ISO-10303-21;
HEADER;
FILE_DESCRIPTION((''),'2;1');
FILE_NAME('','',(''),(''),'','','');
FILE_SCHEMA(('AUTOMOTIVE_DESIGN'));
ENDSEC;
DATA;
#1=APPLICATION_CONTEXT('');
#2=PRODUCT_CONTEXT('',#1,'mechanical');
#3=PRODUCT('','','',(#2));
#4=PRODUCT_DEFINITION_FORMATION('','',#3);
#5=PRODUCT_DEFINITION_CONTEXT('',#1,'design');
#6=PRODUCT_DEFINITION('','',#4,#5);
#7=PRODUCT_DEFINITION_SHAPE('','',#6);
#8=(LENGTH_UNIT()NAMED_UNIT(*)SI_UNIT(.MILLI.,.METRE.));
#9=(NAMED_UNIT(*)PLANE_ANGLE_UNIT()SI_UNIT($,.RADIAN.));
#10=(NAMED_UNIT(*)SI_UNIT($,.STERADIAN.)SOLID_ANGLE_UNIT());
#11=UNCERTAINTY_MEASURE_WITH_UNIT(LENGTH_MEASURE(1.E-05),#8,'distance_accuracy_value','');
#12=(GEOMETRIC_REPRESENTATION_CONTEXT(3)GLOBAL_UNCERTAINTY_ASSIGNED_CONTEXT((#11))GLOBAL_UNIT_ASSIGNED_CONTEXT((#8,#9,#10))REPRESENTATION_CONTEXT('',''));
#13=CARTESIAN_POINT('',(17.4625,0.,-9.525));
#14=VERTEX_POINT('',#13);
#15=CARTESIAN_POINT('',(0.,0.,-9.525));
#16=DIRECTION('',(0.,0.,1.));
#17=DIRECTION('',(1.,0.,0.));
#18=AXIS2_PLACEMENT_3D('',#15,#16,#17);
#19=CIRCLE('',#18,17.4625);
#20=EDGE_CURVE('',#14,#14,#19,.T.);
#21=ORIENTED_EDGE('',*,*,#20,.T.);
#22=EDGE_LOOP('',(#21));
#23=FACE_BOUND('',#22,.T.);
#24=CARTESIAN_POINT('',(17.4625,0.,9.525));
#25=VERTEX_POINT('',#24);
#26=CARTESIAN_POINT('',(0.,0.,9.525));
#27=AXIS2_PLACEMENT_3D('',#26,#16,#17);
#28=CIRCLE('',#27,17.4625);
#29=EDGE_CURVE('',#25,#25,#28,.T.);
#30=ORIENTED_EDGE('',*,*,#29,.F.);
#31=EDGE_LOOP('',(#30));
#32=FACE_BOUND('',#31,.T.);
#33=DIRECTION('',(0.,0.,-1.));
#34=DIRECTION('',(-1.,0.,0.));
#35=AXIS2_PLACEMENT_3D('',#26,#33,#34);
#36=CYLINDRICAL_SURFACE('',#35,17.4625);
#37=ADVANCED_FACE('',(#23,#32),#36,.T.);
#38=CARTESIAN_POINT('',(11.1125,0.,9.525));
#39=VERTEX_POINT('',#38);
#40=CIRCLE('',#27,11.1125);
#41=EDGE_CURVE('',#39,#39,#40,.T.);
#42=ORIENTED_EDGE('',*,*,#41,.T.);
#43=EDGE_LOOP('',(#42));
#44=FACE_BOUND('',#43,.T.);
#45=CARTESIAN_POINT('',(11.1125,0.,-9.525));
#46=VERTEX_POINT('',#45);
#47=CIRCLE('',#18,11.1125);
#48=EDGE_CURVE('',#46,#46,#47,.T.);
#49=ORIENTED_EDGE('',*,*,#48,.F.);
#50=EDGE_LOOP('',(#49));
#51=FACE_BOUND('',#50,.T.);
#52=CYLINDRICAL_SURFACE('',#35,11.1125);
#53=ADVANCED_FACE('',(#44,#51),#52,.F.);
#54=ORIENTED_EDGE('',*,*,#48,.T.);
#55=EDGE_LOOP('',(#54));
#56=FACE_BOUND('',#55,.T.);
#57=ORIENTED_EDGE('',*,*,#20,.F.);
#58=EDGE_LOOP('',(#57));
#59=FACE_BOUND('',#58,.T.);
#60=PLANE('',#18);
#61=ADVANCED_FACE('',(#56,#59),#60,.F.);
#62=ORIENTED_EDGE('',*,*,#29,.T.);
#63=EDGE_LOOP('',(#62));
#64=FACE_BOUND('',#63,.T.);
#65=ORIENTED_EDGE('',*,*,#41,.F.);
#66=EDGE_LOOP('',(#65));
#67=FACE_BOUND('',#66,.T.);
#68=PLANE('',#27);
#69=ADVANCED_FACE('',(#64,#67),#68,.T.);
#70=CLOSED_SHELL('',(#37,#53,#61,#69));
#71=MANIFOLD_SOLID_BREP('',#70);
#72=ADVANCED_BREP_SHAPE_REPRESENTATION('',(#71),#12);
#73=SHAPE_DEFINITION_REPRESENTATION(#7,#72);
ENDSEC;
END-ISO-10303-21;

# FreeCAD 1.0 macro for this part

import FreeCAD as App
import Part
import Sketcher
from FreeCAD import Vector
Q = App.Units.Quantity

doc = App.newDocument("Part")
body = doc.addObject("PartDesign::Body", "Body")

# Sketch on XY plane
sketch1 = body.newObject("Sketcher::SketchObject", "Sketch")
sketch1.AttachmentSupport = (doc.getObject("XY_Plane"), [""])
sketch1.MapMode = "FlatFace"
sketch1.addGeometry([
    Part.Circle(Vector(0, 0, 0), Vector(0, 0, 1), 17),
    Part.Circle(Vector(0, 0, 0), Vector(0, 0, 1), 11),
], False)
sketch1.addConstraint([
    Sketcher.Constraint("Coincident", 0, 3, -1, 1),
    Sketcher.Constraint("Coincident", 1, 3, -1, 1),
    Sketcher.Constraint("Diameter", 0, Q("1.375 in")),
    Sketcher.Constraint("Diameter", 1, Q("0.875 in")),
])
pad1 = body.newObject("PartDesign::Pad", "Pad")
pad1.Profile = sketch1
pad1.Length = Q("0.75 in")
pad1.Midplane = True

doc.recompute()
